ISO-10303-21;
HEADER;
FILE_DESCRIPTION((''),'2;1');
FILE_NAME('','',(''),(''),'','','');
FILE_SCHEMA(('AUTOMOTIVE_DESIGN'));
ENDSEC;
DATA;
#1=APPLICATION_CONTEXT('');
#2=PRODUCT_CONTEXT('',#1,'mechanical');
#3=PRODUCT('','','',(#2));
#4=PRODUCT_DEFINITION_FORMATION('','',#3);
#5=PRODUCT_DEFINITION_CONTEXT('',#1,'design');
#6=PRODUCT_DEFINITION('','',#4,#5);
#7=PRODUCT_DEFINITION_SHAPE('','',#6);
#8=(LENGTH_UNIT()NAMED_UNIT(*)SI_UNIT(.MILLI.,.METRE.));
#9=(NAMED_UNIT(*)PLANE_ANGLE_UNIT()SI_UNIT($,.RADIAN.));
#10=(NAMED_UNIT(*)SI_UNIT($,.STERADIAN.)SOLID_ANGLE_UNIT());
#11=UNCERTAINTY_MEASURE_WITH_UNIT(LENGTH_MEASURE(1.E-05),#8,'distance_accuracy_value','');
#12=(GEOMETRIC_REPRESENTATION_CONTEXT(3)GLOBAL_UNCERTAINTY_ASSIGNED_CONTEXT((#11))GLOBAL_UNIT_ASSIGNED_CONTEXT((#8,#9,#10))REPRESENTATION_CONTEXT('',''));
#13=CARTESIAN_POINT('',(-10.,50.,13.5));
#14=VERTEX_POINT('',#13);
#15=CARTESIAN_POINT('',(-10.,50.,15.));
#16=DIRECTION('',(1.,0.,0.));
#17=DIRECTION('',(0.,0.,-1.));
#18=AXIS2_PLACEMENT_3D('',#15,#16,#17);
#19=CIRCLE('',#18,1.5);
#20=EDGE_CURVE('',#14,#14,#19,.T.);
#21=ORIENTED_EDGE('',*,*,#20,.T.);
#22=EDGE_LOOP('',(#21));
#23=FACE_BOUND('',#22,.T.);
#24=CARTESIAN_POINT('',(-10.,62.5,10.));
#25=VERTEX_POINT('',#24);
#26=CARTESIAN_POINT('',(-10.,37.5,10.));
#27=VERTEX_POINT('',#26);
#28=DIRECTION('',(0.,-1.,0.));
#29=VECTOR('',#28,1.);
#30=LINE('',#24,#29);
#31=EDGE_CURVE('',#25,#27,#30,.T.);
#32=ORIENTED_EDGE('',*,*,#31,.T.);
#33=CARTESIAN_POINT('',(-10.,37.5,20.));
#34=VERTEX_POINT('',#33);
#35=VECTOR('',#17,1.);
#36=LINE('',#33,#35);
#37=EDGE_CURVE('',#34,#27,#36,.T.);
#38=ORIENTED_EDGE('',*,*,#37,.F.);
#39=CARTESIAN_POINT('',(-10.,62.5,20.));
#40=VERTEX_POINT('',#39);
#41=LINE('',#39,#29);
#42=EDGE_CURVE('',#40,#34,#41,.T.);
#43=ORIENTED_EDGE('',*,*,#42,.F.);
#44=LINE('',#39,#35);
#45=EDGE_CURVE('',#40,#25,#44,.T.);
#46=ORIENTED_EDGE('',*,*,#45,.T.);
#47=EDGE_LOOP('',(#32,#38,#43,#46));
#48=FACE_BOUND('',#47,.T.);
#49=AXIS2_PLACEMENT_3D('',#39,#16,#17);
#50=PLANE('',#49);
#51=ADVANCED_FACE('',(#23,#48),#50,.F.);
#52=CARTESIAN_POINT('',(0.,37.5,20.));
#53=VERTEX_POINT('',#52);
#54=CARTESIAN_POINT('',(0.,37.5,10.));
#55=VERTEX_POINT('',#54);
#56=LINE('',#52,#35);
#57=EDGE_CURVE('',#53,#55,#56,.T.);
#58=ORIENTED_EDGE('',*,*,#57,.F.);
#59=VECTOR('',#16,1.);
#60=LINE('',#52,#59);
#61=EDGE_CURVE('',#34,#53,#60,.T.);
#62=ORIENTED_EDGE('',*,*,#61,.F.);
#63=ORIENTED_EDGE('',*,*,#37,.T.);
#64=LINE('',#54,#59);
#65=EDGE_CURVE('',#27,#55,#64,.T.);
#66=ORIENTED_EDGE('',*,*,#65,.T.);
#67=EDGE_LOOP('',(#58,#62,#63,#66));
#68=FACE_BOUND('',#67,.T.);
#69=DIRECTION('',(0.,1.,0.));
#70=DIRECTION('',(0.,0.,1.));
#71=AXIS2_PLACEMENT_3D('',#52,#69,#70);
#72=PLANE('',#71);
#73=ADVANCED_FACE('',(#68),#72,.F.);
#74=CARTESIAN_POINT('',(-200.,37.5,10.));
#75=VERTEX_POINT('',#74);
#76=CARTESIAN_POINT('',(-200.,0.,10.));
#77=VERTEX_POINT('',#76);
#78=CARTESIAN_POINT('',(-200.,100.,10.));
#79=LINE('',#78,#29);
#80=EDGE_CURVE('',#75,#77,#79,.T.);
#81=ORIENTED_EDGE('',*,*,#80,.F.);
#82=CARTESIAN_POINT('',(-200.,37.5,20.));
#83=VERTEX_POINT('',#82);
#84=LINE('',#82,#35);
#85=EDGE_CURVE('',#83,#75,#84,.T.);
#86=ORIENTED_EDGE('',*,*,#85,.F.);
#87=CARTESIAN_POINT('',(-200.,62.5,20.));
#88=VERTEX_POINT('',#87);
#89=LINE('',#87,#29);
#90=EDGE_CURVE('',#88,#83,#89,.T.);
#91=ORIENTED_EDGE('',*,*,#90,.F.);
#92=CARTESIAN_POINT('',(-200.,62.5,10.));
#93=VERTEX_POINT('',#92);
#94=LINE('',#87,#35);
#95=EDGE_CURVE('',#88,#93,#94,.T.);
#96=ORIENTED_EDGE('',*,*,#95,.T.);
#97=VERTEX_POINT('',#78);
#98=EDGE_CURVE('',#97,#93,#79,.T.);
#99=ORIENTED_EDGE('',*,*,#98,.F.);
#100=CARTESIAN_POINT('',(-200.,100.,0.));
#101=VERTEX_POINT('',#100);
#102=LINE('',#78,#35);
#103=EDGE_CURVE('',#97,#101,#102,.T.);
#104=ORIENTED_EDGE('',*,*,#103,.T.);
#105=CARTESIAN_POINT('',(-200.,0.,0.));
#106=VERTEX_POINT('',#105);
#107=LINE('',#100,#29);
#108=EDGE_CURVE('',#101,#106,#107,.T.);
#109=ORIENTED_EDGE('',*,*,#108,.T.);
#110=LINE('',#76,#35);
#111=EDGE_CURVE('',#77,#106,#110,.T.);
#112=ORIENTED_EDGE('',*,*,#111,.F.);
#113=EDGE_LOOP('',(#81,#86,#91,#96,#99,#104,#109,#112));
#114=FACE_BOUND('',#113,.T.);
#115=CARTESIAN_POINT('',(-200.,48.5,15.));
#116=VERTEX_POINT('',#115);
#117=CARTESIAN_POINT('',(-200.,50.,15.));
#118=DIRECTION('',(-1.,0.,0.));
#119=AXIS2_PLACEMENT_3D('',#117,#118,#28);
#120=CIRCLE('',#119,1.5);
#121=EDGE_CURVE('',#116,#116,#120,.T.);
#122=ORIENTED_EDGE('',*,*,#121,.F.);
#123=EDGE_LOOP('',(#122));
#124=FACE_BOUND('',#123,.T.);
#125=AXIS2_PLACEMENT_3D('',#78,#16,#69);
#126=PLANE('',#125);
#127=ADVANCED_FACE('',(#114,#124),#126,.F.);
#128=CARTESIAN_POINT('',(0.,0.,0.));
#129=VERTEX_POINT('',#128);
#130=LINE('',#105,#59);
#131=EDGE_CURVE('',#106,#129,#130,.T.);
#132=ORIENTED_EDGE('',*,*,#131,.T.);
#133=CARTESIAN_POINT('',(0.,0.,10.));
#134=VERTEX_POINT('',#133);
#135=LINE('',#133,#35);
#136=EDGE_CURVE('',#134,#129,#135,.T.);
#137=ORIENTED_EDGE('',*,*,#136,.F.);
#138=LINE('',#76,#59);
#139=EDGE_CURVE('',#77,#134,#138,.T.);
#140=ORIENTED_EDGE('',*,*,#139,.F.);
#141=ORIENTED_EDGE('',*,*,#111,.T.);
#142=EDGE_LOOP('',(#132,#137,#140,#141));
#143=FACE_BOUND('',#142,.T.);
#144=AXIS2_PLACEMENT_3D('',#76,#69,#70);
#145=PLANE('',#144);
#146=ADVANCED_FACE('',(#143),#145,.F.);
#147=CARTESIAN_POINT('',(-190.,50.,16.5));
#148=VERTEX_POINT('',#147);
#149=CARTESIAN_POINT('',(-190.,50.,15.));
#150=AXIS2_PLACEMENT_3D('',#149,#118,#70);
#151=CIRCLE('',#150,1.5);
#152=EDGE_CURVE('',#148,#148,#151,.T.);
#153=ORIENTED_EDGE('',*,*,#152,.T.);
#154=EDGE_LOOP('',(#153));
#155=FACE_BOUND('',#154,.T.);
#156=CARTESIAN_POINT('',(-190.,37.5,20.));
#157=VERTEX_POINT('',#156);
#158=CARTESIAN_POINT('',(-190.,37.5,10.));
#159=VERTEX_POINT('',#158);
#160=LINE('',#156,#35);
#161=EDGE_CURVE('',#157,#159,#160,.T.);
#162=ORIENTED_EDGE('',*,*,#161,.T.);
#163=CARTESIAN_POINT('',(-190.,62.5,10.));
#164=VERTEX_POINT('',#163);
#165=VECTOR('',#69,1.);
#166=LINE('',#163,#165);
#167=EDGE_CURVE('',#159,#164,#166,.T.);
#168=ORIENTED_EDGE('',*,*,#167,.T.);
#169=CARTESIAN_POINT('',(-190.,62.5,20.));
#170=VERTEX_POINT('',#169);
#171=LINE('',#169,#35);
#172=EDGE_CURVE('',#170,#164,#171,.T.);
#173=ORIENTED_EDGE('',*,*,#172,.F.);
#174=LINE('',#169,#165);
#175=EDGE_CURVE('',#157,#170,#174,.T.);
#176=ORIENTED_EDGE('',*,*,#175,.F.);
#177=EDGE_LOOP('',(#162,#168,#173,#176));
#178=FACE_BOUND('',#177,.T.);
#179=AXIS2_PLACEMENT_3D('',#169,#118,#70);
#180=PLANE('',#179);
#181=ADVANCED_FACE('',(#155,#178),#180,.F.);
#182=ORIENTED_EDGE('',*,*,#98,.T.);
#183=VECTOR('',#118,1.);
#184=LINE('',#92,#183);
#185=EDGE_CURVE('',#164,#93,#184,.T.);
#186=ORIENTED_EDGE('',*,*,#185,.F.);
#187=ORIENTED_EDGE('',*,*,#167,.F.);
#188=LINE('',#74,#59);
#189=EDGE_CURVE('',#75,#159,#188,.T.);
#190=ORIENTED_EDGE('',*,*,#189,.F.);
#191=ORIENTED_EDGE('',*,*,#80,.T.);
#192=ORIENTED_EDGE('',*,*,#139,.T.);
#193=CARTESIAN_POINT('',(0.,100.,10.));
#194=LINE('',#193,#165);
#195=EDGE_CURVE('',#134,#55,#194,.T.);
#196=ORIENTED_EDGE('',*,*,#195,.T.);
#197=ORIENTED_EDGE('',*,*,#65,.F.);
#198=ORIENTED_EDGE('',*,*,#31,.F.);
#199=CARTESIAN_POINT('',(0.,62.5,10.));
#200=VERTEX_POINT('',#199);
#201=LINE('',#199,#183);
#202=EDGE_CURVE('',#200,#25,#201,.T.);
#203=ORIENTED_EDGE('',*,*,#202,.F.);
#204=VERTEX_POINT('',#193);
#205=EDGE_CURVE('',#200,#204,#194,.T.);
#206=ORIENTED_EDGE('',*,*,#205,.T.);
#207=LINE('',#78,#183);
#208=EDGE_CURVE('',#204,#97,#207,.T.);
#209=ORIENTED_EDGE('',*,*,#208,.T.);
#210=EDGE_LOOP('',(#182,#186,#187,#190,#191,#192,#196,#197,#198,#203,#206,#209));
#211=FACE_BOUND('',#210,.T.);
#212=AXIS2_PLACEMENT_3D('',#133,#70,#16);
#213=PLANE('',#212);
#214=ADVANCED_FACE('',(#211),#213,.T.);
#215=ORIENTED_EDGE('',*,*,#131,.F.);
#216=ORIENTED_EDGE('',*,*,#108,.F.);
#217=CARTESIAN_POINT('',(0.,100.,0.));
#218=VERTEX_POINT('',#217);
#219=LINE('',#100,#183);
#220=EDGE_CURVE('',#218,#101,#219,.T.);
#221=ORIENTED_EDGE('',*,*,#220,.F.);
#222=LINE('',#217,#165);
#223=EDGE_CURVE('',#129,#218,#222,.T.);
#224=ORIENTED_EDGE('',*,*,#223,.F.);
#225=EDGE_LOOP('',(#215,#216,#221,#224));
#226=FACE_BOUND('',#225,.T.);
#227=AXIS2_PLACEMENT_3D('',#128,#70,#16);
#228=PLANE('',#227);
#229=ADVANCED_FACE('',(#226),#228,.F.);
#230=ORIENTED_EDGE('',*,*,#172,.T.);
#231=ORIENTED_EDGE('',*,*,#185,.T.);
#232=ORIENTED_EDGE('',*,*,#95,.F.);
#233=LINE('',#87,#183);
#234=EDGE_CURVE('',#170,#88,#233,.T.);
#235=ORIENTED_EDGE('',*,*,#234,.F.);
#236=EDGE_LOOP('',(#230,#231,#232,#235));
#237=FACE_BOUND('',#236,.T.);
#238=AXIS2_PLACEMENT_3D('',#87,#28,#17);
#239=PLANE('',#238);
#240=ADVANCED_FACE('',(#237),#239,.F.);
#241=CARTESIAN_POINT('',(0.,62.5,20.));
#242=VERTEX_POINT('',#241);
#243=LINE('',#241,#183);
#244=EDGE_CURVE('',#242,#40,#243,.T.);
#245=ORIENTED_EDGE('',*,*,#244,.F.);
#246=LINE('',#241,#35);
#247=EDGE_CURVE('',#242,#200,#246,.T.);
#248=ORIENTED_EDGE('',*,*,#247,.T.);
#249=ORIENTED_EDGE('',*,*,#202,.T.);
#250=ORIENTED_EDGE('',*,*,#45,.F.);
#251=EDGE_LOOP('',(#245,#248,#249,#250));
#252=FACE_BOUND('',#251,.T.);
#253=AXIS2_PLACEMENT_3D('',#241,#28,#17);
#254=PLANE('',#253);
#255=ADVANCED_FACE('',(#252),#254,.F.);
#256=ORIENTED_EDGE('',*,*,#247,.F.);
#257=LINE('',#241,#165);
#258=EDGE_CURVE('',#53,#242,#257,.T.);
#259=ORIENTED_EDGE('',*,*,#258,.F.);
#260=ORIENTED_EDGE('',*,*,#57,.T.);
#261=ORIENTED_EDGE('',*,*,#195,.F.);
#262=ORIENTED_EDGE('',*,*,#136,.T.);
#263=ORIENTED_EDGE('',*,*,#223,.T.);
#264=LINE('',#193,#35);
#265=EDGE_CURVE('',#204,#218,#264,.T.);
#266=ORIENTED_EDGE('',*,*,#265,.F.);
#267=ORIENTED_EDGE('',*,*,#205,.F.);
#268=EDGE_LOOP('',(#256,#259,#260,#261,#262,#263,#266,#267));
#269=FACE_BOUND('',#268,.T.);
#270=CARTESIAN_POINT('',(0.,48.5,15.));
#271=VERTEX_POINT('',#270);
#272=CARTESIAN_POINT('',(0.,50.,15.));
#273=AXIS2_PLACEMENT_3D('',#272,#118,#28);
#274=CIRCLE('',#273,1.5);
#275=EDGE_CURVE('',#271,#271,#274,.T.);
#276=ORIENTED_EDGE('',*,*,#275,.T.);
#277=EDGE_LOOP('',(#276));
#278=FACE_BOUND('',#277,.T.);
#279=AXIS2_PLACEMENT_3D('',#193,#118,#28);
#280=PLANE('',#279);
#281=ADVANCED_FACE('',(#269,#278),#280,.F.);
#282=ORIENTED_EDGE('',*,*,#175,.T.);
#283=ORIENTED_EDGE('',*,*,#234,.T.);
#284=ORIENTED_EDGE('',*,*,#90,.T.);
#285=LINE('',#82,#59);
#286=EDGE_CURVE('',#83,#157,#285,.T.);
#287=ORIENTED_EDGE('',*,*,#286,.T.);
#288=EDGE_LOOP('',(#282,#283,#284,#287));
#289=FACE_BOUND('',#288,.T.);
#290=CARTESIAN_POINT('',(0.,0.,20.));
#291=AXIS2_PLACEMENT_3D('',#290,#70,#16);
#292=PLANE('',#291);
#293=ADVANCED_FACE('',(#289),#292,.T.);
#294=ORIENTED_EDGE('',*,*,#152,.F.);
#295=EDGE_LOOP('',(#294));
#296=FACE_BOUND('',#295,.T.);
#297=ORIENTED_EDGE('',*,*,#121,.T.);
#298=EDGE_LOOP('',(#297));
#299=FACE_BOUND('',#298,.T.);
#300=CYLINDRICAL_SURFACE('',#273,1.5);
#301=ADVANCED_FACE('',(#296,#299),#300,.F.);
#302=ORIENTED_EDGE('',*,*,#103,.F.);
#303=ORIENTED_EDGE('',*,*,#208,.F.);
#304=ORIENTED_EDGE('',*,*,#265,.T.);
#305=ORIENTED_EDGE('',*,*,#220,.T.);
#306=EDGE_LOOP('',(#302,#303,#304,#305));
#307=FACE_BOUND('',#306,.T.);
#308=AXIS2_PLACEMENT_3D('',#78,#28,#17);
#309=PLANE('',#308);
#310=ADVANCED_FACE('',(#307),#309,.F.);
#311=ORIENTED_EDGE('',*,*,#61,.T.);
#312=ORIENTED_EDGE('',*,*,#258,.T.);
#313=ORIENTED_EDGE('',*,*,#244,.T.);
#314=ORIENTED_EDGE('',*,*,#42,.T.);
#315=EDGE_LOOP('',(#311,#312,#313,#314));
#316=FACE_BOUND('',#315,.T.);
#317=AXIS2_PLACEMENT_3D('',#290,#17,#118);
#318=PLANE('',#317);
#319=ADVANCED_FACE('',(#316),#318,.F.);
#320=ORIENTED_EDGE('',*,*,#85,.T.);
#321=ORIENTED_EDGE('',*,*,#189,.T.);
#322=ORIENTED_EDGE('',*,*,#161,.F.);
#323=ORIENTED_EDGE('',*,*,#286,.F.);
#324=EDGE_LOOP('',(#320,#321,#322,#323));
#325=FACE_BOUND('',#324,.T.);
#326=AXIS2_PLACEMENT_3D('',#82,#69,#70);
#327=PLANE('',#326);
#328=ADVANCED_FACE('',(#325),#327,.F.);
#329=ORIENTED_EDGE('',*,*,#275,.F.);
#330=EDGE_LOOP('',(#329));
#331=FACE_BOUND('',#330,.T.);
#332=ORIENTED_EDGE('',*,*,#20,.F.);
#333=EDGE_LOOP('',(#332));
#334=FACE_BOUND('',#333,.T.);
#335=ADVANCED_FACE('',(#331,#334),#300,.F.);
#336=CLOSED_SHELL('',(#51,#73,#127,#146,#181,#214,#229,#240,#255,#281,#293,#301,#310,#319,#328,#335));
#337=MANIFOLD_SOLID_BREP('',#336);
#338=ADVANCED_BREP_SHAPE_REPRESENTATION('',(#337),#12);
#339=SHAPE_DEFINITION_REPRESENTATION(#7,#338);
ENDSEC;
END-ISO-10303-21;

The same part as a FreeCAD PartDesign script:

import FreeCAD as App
import Part
import Sketcher

V = App.Vector
Q = App.Units.Quantity


def add_polygon(sketch, points):
    """Adds a closed chain of lines whose ends are joined by coincident constraints."""
    first, n = sketch.GeometryCount, len(points)
    for a, b in zip(points, points[1:] + points[:1]):
        sketch.addGeometry(Part.LineSegment(App.Vector(*a, 0), App.Vector(*b, 0)), False)
    for i in range(n):
        sketch.addConstraint(Sketcher.Constraint("Coincident", first + i, 2, first + (i + 1) % n, 1))

doc = App.newDocument("Part")
body = doc.addObject("PartDesign::Body", "Body")

# Sketch on XY plane
sketch1 = doc.addObject("Sketcher::SketchObject", "Sketch")
body.addObject(sketch1)
sketch1.AttachmentSupport = (doc.XY_Plane, [""])
sketch1.MapMode = "FlatFace"
add_polygon(sketch1, [(-200, 100), (-200, 0), (0, 0), (0, 100)])  # lines 0-3
sketch1.addConstraint(Sketcher.Constraint("Vertical", 0))
sketch1.addConstraint(Sketcher.Constraint("Horizontal", 1))
sketch1.addConstraint(Sketcher.Constraint("Vertical", 2))
sketch1.addConstraint(Sketcher.Constraint("Horizontal", 3))
sketch1.addConstraint(Sketcher.Constraint("Coincident", 1, 2, -1, 1))
sketch1.addConstraint(Sketcher.Constraint("DistanceX", 1, 1, 1, 2, Q("200 mm")))
sketch1.addConstraint(Sketcher.Constraint("DistanceY", 0, 2, 0, 1, Q("100 mm")))
pad1 = doc.addObject("PartDesign::Pad", "Pad")
body.addObject(pad1)
pad1.Profile = sketch1
pad1.Length = 10

# Sketch on XY plane
sketch2 = doc.addObject("Sketcher::SketchObject", "Sketch001")
body.addObject(sketch2)
sketch2.AttachmentSupport = (doc.XY_Plane, [""])
sketch2.MapMode = "FlatFace"
sketch2.AttachmentOffset = App.Placement(V(0, 0, 10), App.Rotation())
add_polygon(sketch2, [(-200, 62.5), (-200, 37.5), (-190, 37.5), (-190, 62.5)])  # lines 0-3
add_polygon(sketch2, [(-10, 62.5), (-10, 37.5), (0, 37.5), (0, 62.5)])  # lines 4-7
sketch2.addConstraint(Sketcher.Constraint("Vertical", 0))
sketch2.addConstraint(Sketcher.Constraint("Horizontal", 1))
sketch2.addConstraint(Sketcher.Constraint("Vertical", 2))
sketch2.addConstraint(Sketcher.Constraint("Horizontal", 3))
sketch2.addConstraint(Sketcher.Constraint("Vertical", 4))
sketch2.addConstraint(Sketcher.Constraint("Horizontal", 5))
sketch2.addConstraint(Sketcher.Constraint("Vertical", 6))
sketch2.addConstraint(Sketcher.Constraint("Horizontal", 7))
sketch2.addConstraint(Sketcher.Constraint("PointOnObject", 5, 2, -2))
sketch2.addConstraint(Sketcher.Constraint("Horizontal", 1, 2, 4, 2))
sketch2.addConstraint(Sketcher.Constraint("Horizontal", 3, 2, 6, 2))
sketch2.addConstraint(Sketcher.Constraint("Equal", 3, 5))
sketch2.addConstraint(Sketcher.Constraint("DistanceX", 1, 1, 1, 2, Q("10 mm")))
sketch2.addConstraint(Sketcher.Constraint("DistanceY", 0, 2, 0, 1, Q("25 mm")))
sketch2.addConstraint(Sketcher.Constraint("DistanceX", 0, 2, -1, 1, Q("200 mm")))
sketch2.addConstraint(Sketcher.Constraint("DistanceY", -1, 1, 0, 2, Q("37.5 mm")))
pad2 = doc.addObject("PartDesign::Pad", "Pad001")
body.addObject(pad2)
pad2.Profile = sketch2
pad2.Length = 10

# Sketch on YZ plane
sketch3 = doc.addObject("Sketcher::SketchObject", "Sketch002")
body.addObject(sketch3)
sketch3.AttachmentSupport = (doc.YZ_Plane, [""])
sketch3.MapMode = "FlatFace"
sketch3.AttachmentOffset = App.Placement(V(0, 0, -200), App.Rotation())
sketch3.addGeometry(Part.Circle(V(50, 15, 0), V(0, 0, 1), 1.5), False)
sketch3.addConstraint(Sketcher.Constraint("Diameter", 0, Q("3 mm")))
sketch3.addConstraint(Sketcher.Constraint("DistanceX", -1, 1, 0, 3, Q("50 mm")))
sketch3.addConstraint(Sketcher.Constraint("DistanceY", -1, 1, 0, 3, Q("15 mm")))
pocket1 = doc.addObject("PartDesign::Pocket", "Pocket")
body.addObject(pocket1)
pocket1.Profile = sketch3
pocket1.Type = "ThroughAll"
pocket1.Reversed = True

doc.recompute()
